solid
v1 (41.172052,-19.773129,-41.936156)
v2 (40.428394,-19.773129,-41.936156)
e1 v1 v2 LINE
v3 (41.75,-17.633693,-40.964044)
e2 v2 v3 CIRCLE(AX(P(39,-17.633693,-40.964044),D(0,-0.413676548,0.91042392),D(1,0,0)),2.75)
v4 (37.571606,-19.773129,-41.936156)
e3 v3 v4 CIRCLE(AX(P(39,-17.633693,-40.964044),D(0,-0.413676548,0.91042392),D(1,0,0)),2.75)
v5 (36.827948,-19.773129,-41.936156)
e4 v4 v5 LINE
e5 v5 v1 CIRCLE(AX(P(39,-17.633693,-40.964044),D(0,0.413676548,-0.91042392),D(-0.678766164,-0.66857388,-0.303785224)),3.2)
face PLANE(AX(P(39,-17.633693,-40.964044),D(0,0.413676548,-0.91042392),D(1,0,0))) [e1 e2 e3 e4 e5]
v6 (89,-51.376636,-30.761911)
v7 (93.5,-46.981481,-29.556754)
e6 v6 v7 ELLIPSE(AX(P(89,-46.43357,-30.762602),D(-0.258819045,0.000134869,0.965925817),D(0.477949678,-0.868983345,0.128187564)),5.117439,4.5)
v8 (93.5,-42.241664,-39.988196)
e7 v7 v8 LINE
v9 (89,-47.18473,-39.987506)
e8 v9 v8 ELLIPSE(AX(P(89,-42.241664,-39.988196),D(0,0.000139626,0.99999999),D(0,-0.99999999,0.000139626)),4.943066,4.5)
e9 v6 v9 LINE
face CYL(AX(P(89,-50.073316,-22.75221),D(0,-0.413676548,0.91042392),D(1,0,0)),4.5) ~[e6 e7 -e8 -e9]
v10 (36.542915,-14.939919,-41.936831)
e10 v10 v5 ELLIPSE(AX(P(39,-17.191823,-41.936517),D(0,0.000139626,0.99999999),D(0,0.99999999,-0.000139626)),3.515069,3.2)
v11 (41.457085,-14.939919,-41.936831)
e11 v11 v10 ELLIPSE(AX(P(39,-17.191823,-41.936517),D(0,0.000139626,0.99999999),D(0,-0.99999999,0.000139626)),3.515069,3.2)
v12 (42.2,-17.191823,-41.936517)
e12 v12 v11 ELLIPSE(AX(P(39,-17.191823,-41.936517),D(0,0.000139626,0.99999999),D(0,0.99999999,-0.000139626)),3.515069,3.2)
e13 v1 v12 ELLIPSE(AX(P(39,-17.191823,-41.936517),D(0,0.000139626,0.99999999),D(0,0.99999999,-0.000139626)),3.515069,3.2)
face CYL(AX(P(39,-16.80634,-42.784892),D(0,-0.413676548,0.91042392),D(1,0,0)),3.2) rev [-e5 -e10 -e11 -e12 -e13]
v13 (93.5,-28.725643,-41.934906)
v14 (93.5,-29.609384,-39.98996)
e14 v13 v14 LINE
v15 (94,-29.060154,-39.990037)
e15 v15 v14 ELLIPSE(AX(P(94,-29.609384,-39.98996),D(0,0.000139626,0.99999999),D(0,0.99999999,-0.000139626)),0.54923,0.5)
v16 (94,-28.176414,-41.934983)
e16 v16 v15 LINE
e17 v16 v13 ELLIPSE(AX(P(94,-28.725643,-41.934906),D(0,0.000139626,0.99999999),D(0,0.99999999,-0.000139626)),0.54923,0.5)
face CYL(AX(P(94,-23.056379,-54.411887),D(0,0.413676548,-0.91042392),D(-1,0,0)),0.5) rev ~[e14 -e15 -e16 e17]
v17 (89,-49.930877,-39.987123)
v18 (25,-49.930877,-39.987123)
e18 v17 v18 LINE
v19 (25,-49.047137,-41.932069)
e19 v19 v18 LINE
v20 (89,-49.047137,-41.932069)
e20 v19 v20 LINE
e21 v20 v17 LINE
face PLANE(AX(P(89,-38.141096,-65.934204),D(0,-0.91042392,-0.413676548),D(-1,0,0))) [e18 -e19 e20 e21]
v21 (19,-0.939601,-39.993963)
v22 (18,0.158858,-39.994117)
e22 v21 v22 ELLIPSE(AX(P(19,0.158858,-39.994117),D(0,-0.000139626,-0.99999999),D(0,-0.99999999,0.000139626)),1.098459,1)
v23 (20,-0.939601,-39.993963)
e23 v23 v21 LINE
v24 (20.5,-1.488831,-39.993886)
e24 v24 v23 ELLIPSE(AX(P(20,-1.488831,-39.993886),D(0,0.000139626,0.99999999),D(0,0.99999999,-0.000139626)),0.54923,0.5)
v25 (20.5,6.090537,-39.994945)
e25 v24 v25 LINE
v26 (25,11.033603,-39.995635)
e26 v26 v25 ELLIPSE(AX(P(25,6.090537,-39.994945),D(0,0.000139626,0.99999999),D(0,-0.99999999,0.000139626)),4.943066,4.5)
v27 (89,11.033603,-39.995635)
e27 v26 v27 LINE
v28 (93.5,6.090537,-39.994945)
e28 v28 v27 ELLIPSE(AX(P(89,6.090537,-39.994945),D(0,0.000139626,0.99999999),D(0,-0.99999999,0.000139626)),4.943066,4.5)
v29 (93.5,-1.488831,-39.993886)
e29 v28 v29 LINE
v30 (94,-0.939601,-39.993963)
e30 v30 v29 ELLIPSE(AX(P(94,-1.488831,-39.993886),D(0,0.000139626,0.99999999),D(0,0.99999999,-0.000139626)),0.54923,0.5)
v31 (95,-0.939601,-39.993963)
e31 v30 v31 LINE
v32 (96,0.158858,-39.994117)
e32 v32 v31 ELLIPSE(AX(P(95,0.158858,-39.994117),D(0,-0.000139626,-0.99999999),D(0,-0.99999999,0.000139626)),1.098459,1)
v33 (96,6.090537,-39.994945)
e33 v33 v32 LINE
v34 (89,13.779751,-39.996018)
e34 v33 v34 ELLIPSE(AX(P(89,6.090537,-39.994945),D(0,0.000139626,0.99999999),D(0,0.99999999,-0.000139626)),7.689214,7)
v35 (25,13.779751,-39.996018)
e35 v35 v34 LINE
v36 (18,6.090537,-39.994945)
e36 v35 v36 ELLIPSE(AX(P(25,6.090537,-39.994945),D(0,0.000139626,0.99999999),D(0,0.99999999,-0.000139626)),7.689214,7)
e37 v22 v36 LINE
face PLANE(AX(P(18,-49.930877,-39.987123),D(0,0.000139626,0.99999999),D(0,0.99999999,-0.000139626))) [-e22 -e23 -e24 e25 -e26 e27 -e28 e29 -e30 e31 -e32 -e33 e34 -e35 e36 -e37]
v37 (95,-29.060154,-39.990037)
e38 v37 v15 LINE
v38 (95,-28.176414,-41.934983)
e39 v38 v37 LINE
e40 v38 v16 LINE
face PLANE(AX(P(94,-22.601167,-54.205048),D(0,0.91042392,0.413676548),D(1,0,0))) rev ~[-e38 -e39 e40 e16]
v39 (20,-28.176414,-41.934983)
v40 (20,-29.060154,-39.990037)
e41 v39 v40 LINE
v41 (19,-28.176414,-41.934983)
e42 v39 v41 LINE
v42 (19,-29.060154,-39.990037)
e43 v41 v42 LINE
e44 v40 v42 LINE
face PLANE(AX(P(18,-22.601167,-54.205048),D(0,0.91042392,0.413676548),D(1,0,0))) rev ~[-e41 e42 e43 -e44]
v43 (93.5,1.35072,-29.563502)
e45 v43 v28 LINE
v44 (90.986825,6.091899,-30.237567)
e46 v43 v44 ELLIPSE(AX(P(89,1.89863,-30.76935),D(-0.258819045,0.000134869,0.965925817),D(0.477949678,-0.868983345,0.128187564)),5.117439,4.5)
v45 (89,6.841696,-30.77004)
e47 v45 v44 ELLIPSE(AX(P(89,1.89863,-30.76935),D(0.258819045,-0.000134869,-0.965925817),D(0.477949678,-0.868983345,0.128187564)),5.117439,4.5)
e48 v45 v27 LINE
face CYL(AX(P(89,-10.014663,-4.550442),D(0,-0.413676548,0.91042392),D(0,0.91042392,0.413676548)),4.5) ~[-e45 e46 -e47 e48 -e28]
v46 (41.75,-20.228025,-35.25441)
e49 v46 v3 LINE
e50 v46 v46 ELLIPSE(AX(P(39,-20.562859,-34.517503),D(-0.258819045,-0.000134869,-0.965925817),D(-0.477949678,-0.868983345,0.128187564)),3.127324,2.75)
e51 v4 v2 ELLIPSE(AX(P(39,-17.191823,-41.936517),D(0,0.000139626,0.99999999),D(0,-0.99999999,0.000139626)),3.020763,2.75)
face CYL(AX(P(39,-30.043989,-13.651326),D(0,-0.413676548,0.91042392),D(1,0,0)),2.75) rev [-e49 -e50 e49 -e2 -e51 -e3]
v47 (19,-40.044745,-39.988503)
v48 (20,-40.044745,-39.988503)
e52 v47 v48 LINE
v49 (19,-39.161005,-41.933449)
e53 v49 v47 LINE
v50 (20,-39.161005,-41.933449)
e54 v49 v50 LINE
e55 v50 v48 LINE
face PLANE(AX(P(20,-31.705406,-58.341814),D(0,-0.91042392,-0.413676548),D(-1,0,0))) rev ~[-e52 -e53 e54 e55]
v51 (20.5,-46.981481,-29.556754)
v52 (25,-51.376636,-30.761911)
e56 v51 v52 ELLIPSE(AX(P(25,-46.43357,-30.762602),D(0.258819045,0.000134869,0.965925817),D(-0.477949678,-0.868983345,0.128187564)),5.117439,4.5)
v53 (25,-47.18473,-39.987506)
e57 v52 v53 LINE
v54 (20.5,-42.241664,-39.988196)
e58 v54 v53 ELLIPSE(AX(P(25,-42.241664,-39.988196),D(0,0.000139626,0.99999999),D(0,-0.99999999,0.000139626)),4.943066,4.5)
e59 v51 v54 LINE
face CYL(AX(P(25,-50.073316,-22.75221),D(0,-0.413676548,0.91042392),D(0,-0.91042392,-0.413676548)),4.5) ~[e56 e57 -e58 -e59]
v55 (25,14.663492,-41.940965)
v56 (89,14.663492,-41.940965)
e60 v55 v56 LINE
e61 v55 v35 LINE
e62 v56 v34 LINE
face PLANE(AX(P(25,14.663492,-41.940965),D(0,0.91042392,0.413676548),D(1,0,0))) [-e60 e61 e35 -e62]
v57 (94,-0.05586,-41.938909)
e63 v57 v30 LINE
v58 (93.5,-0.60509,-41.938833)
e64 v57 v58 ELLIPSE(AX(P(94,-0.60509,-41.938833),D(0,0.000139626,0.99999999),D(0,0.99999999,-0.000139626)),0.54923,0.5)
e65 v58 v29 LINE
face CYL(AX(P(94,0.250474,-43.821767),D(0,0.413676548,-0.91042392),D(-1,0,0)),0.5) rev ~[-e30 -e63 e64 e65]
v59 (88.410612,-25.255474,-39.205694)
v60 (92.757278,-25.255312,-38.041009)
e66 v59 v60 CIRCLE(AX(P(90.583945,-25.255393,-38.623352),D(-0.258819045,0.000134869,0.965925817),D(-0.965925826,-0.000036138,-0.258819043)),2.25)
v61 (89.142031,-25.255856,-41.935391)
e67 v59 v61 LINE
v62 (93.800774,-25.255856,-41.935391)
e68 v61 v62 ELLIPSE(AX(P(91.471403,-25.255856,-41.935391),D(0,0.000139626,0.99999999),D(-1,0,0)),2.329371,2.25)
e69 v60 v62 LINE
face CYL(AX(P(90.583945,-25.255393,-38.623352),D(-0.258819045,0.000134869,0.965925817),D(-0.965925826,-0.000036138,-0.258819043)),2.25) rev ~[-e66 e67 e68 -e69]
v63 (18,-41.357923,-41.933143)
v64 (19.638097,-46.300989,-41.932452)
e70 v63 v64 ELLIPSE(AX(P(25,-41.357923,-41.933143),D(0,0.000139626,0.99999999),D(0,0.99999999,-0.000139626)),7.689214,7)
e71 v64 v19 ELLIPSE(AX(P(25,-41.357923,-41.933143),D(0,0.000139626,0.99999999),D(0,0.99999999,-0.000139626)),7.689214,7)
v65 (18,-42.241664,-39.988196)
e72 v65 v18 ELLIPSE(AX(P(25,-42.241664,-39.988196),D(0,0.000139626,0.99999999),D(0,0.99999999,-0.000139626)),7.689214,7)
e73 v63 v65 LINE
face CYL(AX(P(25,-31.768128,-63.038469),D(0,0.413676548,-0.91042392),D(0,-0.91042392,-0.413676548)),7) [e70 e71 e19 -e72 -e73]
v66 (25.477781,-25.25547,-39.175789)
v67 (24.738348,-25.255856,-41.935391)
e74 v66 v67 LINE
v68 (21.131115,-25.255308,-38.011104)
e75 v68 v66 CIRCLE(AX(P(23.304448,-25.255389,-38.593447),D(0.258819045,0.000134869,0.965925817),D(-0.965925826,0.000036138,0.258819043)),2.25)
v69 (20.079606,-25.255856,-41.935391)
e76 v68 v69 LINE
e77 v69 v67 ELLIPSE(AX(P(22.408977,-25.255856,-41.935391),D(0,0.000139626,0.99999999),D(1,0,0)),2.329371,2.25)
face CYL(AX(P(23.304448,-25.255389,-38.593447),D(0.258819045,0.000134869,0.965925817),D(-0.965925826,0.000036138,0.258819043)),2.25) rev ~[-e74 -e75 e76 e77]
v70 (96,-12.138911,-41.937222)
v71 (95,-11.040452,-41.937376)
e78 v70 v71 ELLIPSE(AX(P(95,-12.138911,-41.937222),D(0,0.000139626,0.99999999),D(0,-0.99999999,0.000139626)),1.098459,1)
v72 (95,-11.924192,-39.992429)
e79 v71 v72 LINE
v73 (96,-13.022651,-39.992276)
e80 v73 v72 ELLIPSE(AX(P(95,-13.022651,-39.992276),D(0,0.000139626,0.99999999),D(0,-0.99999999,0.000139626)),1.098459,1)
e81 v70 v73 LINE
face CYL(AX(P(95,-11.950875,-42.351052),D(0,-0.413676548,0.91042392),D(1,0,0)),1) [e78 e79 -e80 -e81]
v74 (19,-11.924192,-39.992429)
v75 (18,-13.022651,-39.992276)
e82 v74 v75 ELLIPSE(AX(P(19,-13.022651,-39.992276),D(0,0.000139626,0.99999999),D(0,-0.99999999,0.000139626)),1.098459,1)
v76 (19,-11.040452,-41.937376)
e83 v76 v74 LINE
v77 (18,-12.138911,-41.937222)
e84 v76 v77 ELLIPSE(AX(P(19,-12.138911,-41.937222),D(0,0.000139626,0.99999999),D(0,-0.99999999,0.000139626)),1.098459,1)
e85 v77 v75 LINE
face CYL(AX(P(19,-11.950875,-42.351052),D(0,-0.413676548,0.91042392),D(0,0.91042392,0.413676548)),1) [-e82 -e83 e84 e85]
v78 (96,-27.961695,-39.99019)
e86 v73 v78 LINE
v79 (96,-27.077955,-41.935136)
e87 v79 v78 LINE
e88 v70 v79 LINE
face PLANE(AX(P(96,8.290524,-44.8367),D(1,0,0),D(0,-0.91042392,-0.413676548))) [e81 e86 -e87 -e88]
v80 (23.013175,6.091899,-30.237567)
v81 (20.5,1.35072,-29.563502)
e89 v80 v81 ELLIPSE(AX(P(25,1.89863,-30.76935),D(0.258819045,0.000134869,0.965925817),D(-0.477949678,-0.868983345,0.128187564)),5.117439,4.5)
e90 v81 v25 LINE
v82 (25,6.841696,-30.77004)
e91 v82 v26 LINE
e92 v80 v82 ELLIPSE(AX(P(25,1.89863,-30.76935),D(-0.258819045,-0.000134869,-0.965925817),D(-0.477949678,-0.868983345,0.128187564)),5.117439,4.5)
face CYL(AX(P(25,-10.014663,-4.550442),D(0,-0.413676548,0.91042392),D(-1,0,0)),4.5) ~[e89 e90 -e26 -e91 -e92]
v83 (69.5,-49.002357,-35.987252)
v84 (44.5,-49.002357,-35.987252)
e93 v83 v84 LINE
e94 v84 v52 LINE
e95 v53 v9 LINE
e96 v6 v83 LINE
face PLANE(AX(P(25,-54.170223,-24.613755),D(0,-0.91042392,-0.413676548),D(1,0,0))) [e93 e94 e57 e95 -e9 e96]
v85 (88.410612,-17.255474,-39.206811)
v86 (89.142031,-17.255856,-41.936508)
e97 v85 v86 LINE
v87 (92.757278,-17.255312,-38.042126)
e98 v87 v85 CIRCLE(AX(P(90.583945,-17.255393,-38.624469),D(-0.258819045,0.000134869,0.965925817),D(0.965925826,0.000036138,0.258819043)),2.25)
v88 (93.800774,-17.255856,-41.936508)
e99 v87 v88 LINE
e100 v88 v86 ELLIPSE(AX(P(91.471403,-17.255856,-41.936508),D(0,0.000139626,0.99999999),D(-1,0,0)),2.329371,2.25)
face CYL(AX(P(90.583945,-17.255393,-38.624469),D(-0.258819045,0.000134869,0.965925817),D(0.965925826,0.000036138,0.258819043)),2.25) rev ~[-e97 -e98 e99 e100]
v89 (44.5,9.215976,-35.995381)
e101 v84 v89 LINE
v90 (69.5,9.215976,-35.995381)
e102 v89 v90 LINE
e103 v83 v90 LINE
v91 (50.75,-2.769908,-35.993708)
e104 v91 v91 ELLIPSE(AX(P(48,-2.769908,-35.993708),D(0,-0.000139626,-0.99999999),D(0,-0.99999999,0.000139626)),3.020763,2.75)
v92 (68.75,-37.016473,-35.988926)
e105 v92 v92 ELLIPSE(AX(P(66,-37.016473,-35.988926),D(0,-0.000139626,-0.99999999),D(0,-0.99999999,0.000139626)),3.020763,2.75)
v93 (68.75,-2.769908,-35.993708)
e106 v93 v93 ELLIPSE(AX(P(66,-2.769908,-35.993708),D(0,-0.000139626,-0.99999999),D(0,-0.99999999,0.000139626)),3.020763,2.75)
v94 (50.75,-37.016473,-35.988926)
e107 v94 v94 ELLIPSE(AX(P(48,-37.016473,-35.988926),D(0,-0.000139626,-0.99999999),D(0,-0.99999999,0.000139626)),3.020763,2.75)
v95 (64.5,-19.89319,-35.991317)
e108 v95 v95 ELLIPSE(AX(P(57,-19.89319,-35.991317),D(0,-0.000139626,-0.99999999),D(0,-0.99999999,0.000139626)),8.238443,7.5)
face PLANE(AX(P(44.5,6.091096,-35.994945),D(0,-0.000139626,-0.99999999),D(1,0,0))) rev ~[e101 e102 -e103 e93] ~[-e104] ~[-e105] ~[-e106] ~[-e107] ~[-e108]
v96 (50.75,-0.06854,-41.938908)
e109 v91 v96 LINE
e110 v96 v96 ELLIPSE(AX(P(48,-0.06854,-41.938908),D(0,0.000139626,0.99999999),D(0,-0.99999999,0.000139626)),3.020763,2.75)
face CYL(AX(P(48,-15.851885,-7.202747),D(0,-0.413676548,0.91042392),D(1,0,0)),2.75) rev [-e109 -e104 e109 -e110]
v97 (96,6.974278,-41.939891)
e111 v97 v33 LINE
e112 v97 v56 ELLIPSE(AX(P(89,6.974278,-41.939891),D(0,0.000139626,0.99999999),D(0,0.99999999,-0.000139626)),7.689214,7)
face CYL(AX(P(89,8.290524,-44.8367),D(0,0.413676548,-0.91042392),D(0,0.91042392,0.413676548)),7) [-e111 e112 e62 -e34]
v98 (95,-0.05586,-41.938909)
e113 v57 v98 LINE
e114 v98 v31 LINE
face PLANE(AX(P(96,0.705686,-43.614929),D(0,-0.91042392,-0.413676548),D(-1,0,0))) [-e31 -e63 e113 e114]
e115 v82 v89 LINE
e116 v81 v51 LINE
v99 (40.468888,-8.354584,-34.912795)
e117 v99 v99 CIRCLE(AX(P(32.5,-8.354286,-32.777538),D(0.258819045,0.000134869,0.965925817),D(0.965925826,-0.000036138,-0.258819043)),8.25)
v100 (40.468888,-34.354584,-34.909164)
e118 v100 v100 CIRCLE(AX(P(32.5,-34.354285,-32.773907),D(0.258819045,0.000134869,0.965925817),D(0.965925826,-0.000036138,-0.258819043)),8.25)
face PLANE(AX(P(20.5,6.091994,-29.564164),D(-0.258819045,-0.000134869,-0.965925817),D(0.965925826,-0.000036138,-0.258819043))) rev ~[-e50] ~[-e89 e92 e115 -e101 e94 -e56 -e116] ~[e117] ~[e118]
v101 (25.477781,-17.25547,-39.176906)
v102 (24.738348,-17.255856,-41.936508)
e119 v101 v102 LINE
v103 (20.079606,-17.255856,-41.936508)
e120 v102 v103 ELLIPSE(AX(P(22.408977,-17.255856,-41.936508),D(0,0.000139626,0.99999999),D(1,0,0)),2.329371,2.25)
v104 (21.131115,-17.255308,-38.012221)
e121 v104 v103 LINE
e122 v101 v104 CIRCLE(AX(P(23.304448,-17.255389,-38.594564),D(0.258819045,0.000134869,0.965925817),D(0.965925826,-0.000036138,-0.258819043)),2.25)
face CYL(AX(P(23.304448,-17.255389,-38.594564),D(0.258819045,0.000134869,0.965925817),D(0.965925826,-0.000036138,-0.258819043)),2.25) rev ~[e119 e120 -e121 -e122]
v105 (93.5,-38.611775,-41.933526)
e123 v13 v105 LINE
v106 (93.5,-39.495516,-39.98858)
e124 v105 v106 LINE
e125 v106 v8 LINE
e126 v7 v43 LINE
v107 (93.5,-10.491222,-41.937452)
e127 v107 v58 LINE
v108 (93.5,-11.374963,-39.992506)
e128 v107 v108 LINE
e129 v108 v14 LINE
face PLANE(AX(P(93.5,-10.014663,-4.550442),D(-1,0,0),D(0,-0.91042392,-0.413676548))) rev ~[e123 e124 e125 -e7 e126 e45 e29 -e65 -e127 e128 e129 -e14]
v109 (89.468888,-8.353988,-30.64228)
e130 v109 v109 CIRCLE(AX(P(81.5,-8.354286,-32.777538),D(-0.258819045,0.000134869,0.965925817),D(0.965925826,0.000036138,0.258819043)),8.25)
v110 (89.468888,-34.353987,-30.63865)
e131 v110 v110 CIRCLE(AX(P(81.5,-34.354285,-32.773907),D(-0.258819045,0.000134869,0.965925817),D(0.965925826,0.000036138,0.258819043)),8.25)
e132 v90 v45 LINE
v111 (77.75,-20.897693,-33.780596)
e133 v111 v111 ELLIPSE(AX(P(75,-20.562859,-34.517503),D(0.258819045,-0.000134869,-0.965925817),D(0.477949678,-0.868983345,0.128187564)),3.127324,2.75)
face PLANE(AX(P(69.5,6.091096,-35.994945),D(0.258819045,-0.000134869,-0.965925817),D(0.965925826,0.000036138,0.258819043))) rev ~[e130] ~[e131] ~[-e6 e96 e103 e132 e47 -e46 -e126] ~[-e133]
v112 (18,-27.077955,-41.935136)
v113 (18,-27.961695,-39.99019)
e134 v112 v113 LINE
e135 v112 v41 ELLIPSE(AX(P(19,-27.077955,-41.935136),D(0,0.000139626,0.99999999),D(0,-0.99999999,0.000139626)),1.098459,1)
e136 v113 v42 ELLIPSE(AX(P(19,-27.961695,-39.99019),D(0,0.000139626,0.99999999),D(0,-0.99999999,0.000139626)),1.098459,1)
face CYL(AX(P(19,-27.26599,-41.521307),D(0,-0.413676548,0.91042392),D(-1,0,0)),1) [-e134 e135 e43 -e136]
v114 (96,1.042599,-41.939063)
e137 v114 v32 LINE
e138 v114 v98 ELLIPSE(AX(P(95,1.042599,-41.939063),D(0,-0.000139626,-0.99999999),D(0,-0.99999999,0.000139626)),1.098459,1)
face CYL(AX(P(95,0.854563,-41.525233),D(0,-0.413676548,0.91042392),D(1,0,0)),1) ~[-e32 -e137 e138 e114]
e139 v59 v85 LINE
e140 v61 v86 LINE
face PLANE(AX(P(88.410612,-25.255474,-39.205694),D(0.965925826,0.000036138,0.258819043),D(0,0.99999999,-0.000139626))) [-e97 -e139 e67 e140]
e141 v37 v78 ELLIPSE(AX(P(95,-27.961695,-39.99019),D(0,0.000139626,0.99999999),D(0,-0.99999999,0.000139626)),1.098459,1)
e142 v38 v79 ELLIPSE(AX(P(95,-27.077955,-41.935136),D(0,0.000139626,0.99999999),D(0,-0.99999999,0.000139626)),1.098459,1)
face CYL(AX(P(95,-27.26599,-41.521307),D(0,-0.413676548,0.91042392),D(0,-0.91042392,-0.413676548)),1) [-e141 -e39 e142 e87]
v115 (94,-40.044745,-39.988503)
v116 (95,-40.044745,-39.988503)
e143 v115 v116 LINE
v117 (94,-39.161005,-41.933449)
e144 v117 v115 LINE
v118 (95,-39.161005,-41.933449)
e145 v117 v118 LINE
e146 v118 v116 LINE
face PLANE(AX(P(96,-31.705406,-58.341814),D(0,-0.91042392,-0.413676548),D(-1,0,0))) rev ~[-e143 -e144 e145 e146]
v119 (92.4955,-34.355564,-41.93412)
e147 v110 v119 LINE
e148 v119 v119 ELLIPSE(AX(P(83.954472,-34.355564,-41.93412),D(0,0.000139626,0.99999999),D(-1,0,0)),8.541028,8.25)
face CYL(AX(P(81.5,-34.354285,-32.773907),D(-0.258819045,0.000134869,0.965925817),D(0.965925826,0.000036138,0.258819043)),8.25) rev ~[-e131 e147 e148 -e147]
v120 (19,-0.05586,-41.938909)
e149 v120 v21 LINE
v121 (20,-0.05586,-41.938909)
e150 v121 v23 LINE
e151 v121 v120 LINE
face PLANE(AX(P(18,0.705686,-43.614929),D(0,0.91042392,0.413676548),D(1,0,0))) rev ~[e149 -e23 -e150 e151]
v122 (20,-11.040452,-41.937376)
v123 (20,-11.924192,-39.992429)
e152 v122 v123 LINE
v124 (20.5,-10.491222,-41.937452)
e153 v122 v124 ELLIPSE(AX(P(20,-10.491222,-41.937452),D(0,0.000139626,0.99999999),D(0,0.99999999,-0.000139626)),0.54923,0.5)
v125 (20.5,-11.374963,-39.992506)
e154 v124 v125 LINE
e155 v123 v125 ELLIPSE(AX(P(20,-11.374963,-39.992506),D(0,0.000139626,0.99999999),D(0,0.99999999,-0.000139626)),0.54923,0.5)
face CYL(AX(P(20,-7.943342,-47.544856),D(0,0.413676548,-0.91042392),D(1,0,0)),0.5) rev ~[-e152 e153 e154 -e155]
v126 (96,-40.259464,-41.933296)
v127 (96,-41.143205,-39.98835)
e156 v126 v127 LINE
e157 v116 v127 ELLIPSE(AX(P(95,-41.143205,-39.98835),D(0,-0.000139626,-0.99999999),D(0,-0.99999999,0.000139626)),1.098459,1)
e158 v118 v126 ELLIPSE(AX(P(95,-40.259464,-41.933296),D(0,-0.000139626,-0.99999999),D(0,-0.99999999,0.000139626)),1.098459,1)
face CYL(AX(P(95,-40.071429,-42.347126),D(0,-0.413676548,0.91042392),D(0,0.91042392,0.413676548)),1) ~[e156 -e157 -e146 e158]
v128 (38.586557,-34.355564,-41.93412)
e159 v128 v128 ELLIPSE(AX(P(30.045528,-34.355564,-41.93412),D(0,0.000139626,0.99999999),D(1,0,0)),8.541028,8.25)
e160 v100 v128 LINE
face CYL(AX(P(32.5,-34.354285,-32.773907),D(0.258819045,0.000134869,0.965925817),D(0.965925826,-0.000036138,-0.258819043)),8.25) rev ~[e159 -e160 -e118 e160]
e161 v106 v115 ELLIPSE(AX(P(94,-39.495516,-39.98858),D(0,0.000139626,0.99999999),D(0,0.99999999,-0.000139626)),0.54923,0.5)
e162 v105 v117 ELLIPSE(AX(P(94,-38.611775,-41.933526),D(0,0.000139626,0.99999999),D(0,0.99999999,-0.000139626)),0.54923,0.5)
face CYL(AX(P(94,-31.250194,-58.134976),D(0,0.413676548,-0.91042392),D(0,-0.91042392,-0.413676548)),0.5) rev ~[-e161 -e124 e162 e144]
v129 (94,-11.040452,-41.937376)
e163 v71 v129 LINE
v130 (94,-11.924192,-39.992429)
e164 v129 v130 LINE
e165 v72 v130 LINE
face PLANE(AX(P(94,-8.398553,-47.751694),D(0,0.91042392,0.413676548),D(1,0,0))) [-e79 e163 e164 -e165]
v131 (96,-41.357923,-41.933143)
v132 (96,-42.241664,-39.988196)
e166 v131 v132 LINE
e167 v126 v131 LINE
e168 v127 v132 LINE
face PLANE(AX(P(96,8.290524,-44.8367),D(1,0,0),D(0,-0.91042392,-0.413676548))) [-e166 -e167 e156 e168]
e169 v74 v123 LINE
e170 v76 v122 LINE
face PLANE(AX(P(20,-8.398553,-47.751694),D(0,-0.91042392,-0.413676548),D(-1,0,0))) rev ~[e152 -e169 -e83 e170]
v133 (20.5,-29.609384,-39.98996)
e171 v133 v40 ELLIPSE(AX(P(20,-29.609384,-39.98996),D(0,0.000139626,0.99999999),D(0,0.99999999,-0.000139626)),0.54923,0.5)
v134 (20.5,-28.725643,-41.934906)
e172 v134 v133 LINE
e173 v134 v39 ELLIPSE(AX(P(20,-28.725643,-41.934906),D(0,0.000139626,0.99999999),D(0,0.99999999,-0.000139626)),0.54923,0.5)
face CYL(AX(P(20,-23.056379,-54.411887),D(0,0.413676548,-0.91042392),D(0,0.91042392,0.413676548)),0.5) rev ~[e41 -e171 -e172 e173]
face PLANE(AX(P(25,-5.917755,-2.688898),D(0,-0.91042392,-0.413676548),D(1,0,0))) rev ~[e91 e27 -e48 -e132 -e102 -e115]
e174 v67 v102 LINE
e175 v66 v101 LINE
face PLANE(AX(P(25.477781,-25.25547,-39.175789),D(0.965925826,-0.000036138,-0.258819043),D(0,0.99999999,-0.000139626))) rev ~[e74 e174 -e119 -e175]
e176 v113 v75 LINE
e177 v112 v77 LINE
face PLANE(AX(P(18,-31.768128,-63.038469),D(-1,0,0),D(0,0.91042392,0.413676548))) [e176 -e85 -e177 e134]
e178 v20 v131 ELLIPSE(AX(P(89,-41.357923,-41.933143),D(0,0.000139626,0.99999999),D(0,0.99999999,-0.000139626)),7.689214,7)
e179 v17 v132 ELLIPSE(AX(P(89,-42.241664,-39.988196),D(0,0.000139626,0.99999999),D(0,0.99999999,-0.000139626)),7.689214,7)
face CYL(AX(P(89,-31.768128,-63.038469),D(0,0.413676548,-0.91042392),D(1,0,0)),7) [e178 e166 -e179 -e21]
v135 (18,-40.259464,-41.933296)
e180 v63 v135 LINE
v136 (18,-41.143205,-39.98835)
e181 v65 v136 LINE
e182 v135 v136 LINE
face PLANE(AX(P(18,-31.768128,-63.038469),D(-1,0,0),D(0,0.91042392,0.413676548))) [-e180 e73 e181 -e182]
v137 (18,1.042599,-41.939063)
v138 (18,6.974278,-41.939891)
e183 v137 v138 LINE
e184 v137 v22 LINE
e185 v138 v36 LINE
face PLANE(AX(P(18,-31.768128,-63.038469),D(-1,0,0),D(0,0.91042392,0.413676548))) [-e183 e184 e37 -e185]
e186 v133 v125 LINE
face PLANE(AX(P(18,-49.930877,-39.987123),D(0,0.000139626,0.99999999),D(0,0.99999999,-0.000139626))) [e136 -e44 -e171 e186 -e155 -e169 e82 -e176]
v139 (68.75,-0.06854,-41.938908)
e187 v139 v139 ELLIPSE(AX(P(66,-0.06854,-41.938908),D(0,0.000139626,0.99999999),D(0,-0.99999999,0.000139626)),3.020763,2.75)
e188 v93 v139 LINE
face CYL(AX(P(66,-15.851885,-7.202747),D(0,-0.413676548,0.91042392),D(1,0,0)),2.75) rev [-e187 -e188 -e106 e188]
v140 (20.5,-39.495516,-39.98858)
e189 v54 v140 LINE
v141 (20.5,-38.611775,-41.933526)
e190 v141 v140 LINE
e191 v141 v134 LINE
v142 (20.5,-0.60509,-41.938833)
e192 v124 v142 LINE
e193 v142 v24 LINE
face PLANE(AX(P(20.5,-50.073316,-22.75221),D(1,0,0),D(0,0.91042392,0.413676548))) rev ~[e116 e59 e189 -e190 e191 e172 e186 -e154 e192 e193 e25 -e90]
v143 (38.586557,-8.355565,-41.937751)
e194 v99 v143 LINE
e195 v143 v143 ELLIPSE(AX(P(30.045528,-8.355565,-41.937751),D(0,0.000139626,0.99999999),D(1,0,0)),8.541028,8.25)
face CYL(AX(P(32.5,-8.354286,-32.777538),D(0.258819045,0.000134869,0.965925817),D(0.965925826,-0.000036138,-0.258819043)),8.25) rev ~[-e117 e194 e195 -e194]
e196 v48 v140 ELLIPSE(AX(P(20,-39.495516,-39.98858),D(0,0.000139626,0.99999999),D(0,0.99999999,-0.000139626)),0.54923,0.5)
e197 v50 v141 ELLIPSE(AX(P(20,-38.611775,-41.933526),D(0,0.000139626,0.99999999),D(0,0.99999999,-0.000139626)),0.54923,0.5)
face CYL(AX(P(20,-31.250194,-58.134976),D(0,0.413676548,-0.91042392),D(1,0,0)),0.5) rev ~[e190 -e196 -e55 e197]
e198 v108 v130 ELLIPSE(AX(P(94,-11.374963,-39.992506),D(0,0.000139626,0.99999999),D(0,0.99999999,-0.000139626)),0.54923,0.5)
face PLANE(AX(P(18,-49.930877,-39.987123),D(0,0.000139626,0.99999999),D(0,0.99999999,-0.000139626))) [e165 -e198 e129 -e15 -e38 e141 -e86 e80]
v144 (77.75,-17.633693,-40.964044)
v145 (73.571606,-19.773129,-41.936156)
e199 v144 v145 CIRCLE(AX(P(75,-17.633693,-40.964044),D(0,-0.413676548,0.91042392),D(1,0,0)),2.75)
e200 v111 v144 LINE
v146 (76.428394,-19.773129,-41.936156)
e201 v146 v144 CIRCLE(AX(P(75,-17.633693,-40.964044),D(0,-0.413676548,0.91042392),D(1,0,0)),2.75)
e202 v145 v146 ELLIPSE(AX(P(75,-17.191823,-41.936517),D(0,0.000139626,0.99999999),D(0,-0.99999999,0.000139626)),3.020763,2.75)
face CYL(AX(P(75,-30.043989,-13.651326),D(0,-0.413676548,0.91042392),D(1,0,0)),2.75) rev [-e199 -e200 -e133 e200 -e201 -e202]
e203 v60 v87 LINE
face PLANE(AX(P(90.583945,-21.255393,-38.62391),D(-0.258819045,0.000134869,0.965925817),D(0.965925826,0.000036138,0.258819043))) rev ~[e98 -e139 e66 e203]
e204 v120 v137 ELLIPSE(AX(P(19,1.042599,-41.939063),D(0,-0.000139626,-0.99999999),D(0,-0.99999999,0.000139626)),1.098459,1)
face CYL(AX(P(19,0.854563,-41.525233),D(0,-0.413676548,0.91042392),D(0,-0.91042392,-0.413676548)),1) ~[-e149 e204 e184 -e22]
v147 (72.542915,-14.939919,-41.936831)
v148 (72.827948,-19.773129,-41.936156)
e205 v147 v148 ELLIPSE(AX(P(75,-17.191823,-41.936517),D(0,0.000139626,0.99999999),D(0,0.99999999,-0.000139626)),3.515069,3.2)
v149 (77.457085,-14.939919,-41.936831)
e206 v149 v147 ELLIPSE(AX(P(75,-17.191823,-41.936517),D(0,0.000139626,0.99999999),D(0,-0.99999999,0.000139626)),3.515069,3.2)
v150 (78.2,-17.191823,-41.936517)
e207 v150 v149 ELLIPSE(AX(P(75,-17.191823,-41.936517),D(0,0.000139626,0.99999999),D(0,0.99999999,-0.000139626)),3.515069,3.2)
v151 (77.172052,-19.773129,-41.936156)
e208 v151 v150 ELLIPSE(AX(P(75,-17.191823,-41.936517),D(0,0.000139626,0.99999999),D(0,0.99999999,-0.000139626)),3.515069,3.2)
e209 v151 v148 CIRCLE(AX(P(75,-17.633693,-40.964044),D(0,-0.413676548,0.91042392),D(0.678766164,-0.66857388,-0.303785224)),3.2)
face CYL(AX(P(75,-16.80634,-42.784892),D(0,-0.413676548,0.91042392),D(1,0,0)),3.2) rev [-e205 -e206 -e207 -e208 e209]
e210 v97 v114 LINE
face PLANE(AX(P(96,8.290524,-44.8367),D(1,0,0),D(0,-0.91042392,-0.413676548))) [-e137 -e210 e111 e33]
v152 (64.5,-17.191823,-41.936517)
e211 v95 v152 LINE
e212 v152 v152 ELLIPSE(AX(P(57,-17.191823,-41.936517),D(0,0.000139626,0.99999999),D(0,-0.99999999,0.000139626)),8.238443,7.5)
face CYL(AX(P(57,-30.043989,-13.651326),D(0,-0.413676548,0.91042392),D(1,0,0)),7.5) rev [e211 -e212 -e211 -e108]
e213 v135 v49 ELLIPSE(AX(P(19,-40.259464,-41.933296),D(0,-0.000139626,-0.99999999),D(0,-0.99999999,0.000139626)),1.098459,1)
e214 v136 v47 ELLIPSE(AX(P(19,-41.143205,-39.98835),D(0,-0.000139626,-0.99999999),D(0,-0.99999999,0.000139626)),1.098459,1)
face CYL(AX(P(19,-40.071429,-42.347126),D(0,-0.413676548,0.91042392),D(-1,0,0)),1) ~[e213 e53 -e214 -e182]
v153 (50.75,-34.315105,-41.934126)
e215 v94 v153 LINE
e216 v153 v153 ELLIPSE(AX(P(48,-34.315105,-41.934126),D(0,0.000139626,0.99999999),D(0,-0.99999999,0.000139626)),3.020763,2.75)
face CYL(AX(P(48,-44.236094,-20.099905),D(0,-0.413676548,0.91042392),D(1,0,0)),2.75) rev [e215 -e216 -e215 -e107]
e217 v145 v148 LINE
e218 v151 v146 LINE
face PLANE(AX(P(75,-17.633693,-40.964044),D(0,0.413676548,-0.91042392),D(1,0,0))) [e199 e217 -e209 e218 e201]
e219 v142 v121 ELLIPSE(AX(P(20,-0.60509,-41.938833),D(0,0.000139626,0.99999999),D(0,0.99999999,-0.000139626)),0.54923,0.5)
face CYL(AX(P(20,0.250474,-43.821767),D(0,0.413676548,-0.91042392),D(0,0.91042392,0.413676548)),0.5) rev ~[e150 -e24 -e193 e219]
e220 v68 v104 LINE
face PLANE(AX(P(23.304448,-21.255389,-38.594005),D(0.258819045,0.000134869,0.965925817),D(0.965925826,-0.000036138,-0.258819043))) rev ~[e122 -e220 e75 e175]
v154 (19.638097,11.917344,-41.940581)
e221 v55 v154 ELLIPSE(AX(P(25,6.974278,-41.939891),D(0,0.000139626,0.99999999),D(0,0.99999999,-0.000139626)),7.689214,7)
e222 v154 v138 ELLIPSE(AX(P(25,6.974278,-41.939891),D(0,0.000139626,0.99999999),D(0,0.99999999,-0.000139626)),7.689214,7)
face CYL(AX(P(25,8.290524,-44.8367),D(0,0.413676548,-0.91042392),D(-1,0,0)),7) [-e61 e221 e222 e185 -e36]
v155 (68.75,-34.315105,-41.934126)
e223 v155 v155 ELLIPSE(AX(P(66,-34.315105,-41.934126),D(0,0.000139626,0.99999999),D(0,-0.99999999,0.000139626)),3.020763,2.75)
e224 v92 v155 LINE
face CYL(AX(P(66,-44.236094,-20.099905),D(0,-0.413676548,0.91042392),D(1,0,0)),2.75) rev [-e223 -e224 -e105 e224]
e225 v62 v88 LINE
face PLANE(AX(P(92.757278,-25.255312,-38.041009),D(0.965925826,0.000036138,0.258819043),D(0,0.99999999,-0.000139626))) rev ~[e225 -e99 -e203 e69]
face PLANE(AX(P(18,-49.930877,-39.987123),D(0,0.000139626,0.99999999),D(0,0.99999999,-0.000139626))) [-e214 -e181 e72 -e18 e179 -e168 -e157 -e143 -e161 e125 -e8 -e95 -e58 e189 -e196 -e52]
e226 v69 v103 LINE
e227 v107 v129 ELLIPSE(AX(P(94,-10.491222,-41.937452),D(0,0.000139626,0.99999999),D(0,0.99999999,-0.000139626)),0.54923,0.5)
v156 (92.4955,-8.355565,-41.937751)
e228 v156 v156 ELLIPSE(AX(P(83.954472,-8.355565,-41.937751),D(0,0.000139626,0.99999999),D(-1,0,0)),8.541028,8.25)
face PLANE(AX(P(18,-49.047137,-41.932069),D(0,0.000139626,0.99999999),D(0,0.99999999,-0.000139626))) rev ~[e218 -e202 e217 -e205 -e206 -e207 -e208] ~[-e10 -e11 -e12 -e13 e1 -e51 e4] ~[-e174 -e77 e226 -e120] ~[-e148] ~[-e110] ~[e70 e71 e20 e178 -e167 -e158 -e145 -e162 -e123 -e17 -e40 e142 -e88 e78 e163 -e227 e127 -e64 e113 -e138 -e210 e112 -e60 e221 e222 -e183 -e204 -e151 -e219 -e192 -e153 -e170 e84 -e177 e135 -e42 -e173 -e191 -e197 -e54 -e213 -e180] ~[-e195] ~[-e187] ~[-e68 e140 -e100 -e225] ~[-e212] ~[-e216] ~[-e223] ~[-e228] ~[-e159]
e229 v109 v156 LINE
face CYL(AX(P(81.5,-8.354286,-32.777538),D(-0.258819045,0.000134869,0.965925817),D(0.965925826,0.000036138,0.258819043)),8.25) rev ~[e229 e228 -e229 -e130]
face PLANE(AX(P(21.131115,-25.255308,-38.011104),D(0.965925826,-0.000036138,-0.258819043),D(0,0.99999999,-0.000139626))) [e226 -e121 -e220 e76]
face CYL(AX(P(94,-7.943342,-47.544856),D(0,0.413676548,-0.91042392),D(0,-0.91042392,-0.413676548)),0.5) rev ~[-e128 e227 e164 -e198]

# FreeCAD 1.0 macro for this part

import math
import FreeCAD as App
import Part
import Sketcher
from FreeCAD import Vector
Q = App.Units.Quantity


def edges_at(feature, points):
    """Names of the edges that pass closest to the given points."""
    edges = feature.Shape.Edges
    near = lambda p: min(range(len(edges)), key=lambda i: edges[i].distToShape(Part.Vertex(*p))[0])
    return sorted({f"Edge{near(p) + 1}" for p in points})


def add_polygon(sketch, points):
    """Adds a closed chain of lines whose ends are joined by coincident constraints."""
    first, n = sketch.GeometryCount, len(points)
    for a, b in zip(points, points[1:] + points[:1]):
        sketch.addGeometry(Part.LineSegment(App.Vector(*a, 0), App.Vector(*b, 0)), False)
    for i in range(n):
        sketch.addConstraint(Sketcher.Constraint("Coincident", first + i, 2, first + (i + 1) % n, 1))

doc = App.newDocument("Part")
body = doc.addObject("PartDesign::Body", "Body")

# Sketch on XY plane
sketch1 = body.newObject("Sketcher::SketchObject", "Sketch")
sketch1.AttachmentSupport = (doc.getObject("XY_Plane"), [""])
sketch1.MapMode = "FlatFace"
sketch1.AttachmentOffset = App.Placement(Vector(0, 0, 44.25), App.Rotation())
sketch1.addGeometry([
    Part.LineSegment(Vector(25, 4, 0), Vector(89, 4, 0)),  # 0
    Part.ArcOfCircle(Part.Circle(Vector(89, 11, 0), Vector(0, 0, 1), 7), math.radians(-90), math.radians(0)),  # 1
    Part.LineSegment(Vector(96, 11, 0), Vector(96, 55, 0)),  # 2
    Part.ArcOfCircle(Part.Circle(Vector(89, 55, 0), Vector(0, 0, 1), 7), math.radians(0), math.radians(90)),  # 3
    Part.LineSegment(Vector(89, 62, 0), Vector(25, 62, 0)),  # 4
    Part.ArcOfCircle(Part.Circle(Vector(25, 55, 0), Vector(0, 0, 1), 7), math.radians(90), math.radians(180)),  # 5
    Part.LineSegment(Vector(18, 55, 0), Vector(18, 11, 0)),  # 6
    Part.ArcOfCircle(Part.Circle(Vector(25, 11, 0), Vector(0, 0, 1), 7), math.radians(180), math.radians(270)),  # 7
], False)
sketch1.addConstraint([
    Sketcher.Constraint("Tangent", 0, 2, 1, 1),
    Sketcher.Constraint("Tangent", 1, 2, 2, 1),
    Sketcher.Constraint("Tangent", 2, 2, 3, 1),
    Sketcher.Constraint("Tangent", 3, 2, 4, 1),
    Sketcher.Constraint("Tangent", 4, 2, 5, 1),
    Sketcher.Constraint("Tangent", 5, 2, 6, 1),
    Sketcher.Constraint("Tangent", 6, 2, 7, 1),
    Sketcher.Constraint("Tangent", 7, 2, 0, 1),
    Sketcher.Constraint("Horizontal", 0),
    Sketcher.Constraint("Vertical", 2),
    Sketcher.Constraint("Horizontal", 4),
    Sketcher.Constraint("Vertical", 6),
    Sketcher.Constraint("Equal", 1, 3),
    Sketcher.Constraint("Equal", 3, 5),
    Sketcher.Constraint("Equal", 5, 7),
    Sketcher.Constraint("Radius", 1, 7.0),
    Sketcher.Constraint("DistanceX", 0, 1, 0, 2, 64.0),
    Sketcher.Constraint("DistanceY", 2, 1, 2, 2, 44.0),
    Sketcher.Constraint("DistanceX", -1, 1, 1, 3, 89.0),
    Sketcher.Constraint("DistanceY", -1, 1, 1, 3, 11.0),
])
pad1 = body.newObject("PartDesign::Pad", "Pad")
pad1.Profile = sketch1
pad1.Length = 28.5
pad1.Reversed = True

# Sketch on YZ plane
sketch2 = body.newObject("Sketcher::SketchObject", "Sketch001")
sketch2.AttachmentSupport = (doc.getObject("YZ_Plane"), [""])
sketch2.MapMode = "FlatFace"
sketch2.AttachmentOffset = App.Placement(Vector(0, 0, 18), App.Rotation())
add_polygon(sketch2, [(4, 42), (62, 16), (4, 16)])  # lines 0-2
add_polygon(sketch2, [(62, 18), (4, 44), (62, 44)])  # lines 3-5
sketch2.addConstraint([
    Sketcher.Constraint("Horizontal", 1),
    Sketcher.Constraint("Vertical", 2),
    Sketcher.Constraint("Horizontal", 4),
    Sketcher.Constraint("Vertical", 5),
    Sketcher.Constraint("Parallel", 0, 3),
    Sketcher.Constraint("Vertical", 2, 2, 3, 2),
    Sketcher.Constraint("Vertical", 0, 2, 4, 2),
    Sketcher.Constraint("DistanceX", 1, 2, 1, 1, 58.0),
    Sketcher.Constraint("DistanceX", -1, 1, 0, 2, 62.0),
    Sketcher.Constraint("DistanceY", 1, 2, 3, 2, 28.5),
    Sketcher.Constraint("DistanceY", -1, 1, 0, 2, 15.75),
    Sketcher.Constraint("DistanceY", 2, 1, 2, 2, 26.363692),
])
pocket1 = body.newObject("PartDesign::Pocket", "Pocket")
pocket1.Profile = sketch2
pocket1.Length = 80
pocket1.Reversed = True

# Sketch on XY plane
sketch3 = body.newObject("Sketcher::SketchObject", "Sketch002")
sketch3.AttachmentSupport = (doc.getObject("XY_Plane"), [""])
sketch3.MapMode = "FlatFace"
sketch3.addGeometry([
    Part.ArcOfCircle(Part.Circle(Vector(25, 11, 0), Vector(0, 0, 1), 4.5), math.radians(180), math.radians(270)),  # 0
    Part.LineSegment(Vector(25, 6.5, 0), Vector(89, 6.5, 0)),  # 1
    Part.ArcOfCircle(Part.Circle(Vector(89, 11, 0), Vector(0, 0, 1), 4.5), math.radians(-90), math.radians(0)),  # 2
    Part.LineSegment(Vector(93.5, 11, 0), Vector(93.5, 55, 0)),  # 3
    Part.ArcOfCircle(Part.Circle(Vector(89, 55, 0), Vector(0, 0, 1), 4.5), math.radians(0), math.radians(90)),  # 4
    Part.LineSegment(Vector(89, 59.5, 0), Vector(25, 59.5, 0)),  # 5
    Part.ArcOfCircle(Part.Circle(Vector(25, 55, 0), Vector(0, 0, 1), 4.5), math.radians(90), math.radians(180)),  # 6
    Part.LineSegment(Vector(20.5, 55, 0), Vector(20.5, 11, 0)),  # 7
], False)
sketch3.addConstraint([
    Sketcher.Constraint("Tangent", 0, 2, 1, 1),
    Sketcher.Constraint("Tangent", 1, 2, 2, 1),
    Sketcher.Constraint("Tangent", 2, 2, 3, 1),
    Sketcher.Constraint("Tangent", 3, 2, 4, 1),
    Sketcher.Constraint("Tangent", 4, 2, 5, 1),
    Sketcher.Constraint("Tangent", 5, 2, 6, 1),
    Sketcher.Constraint("Tangent", 6, 2, 7, 1),
    Sketcher.Constraint("Tangent", 7, 2, 0, 1),
    Sketcher.Constraint("Horizontal", 1),
    Sketcher.Constraint("Vertical", 3),
    Sketcher.Constraint("Horizontal", 5),
    Sketcher.Constraint("Vertical", 7),
    Sketcher.Constraint("Equal", 0, 2),
    Sketcher.Constraint("Equal", 2, 4),
    Sketcher.Constraint("Equal", 4, 6),
    Sketcher.Constraint("Radius", 0, 4.5),
    Sketcher.Constraint("DistanceX", 1, 1, 1, 2, 64.0),
    Sketcher.Constraint("DistanceY", 3, 1, 3, 2, 44.0),
    Sketcher.Constraint("DistanceX", -1, 1, 0, 3, 25.0),
    Sketcher.Constraint("DistanceY", -1, 1, 0, 3, 11.0),
])
pad2 = body.newObject("PartDesign::Pad", "Pad001")
pad2.Profile = sketch3
pad2.Length = 44

# Sketch on YZ plane
sketch4 = body.newObject("Sketcher::SketchObject", "Sketch003")
sketch4.AttachmentSupport = (doc.getObject("YZ_Plane"), [""])
sketch4.MapMode = "FlatFace"
sketch4.AttachmentOffset = App.Placement(Vector(0, 0, 93.5), App.Rotation())
add_polygon(sketch4, [(6.5, 43.1), (59.5, 19), (59.5, 44), (6.5, 44)])  # lines 0-3
sketch4.addConstraint([
    Sketcher.Constraint("Vertical", 1),
    Sketcher.Constraint("Horizontal", 2),
    Sketcher.Constraint("Vertical", 3),
    Sketcher.Constraint("DistanceX", 2, 2, 2, 1, 53.0),
    Sketcher.Constraint("DistanceY", -1, 1, 1, 2, 44.0),
    Sketcher.Constraint("DistanceX", -1, 1, 0, 2, 59.5),
    Sketcher.Constraint("DistanceY", 1, 1, 1, 2, 24.977326),
    Sketcher.Constraint("DistanceY", 3, 2, 3, 1, 0.886366),
])
pocket2 = body.newObject("PartDesign::Pocket", "Pocket001")
pocket2.Profile = sketch4
pocket2.Length = 80

# Sketch on an angled plane
sketch5 = body.newObject("Sketcher::SketchObject", "Sketch004")
sketch5.Placement = App.Placement(Vector(96, 11, 38.931867), App.Rotation(Vector(1, 0, 0), Vector(0, 0.413803663, 0.910366151), Vector(0, -0.910366151, 0.413803663), "ZXY"))
add_polygon(sketch5, [(-52, -4), (-76, -10), (-76, -38), (-2, -38), (-2, -10), (-26, -4)])  # lines 0-5
sketch5.addConstraint([
    Sketcher.Constraint("Vertical", 1),
    Sketcher.Constraint("Horizontal", 2),
    Sketcher.Constraint("Vertical", 3),
    Sketcher.Constraint("Horizontal", 5),
    Sketcher.Constraint("Horizontal", 0, 2, 3, 2),
    Sketcher.Constraint("Equal", 0, 4),
    Sketcher.Constraint("DistanceX", 2, 1, 2, 2, 73.0),
    Sketcher.Constraint("DistanceX", 5, 2, 5, 1, 25.0),
    Sketcher.Constraint("Angle", 0, Q("-165 deg")),
    Sketcher.Constraint("DistanceY", 1, 2, -1, 1, 38.0),
    Sketcher.Constraint("DistanceY", 4, 2, -1, 1, 4.0),
    Sketcher.Constraint("DistanceX", 0, 2, -1, 1, 75.5),
])
pocket3 = body.newObject("PartDesign::Pocket", "Pocket002")
pocket3.Profile = sketch5
pocket3.Type = "ThroughAll"
pocket3.Midplane = True

# Sketch on an angled plane
sketch6 = body.newObject("Sketcher::SketchObject", "Sketch005")
sketch6.Placement = App.Placement(Vector(-6.017589, 9.293181, 20.444955), App.Rotation(Vector(0.965925826, 0.107100269, 0.235620098), Vector(0, -0.910366151, 0.413803663), Vector(0.258819045, -0.399703645, -0.879346177), "ZXY"))
sketch6.addGeometry([
    Part.Circle(Vector(40, -8, 0), Vector(0, 0, 1), 8),
    Part.Circle(Vector(40, -34, 0), Vector(0, 0, 1), 8),
], False)
sketch6.addConstraint([
    Sketcher.Constraint("Equal", 0, 1),
    Sketcher.Constraint("Vertical", 0, 3, 1, 3),
    Sketcher.Constraint("Diameter", 0, 16.5),
    Sketcher.Constraint("DistanceY", 1, 3, 0, 3, 26.0),
    Sketcher.Constraint("DistanceY", 0, 3, -1, 1, 8.349709),
    Sketcher.Constraint("DistanceX", -1, 1, 0, 3, 39.876342),
])
pocket4 = body.newObject("PartDesign::Pocket", "Pocket003")
pocket4.Profile = sketch6
pocket4.Length = 15

# Sketch on an angled plane
sketch7 = body.newObject("Sketcher::SketchObject", "Sketch006")
sketch7.Placement = App.Placement(Vector(13.654141, 21.086585, 46.39039), App.Rotation(Vector(0.965925826, -0.107100269, -0.235620098), Vector(0, -0.910366151, 0.413803663), Vector(-0.258819045, -0.399703645, -0.879346177), "ZXY"))
sketch7.addGeometry([
    Part.Circle(Vector(70, -8, 0), Vector(0, 0, 1), 8),
    Part.Circle(Vector(70, -34, 0), Vector(0, 0, 1), 8),
], False)
sketch7.addConstraint([
    Sketcher.Constraint("Equal", 0, 1),
    Sketcher.Constraint("Vertical", 0, 3, 1, 3),
    Sketcher.Constraint("Diameter", 0, 16.5),
    Sketcher.Constraint("DistanceY", 1, 3, 0, 3, 26.0),
    Sketcher.Constraint("DistanceY", 0, 3, -1, 1, 8.349709),
    Sketcher.Constraint("DistanceX", -1, 1, 0, 3, 70.239202),
])
pocket5 = body.newObject("PartDesign::Pocket", "Pocket004")
pocket5.Profile = sketch7
pocket5.Length = 19

# Sketch on an angled plane
sketch8 = body.newObject("Sketcher::SketchObject", "Sketch007")
sketch8.Placement = App.Placement(Vector(-8.088141, 12.49081, 27.479724), App.Rotation(Vector(0.965925826, 0.107100269, 0.235620098), Vector(0, -0.910366151, 0.413803663), Vector(0.258819045, -0.399703645, -0.879346177), "ZXY"))
sketch8.addGeometry([
    Part.ArcOfCircle(Part.Circle(Vector(32.5, -25.3, 0), Vector(0, 0, 1), 2.2), math.radians(180), math.radians(360)),
    Part.LineSegment(Vector(34.7, -25.3, 0), Vector(34.7, -17.3, 0)),
    Part.ArcOfCircle(Part.Circle(Vector(32.5, -17.3, 0), Vector(0, 0, 1), 2.2), math.radians(0), math.radians(180)),
    Part.LineSegment(Vector(30.2, -17.3, 0), Vector(30.2, -25.3, 0)),
], False)
sketch8.addConstraint([
    Sketcher.Constraint("Tangent", 0, 2, 1, 1),
    Sketcher.Constraint("Tangent", 1, 2, 2, 1),
    Sketcher.Constraint("Tangent", 2, 2, 3, 1),
    Sketcher.Constraint("Tangent", 3, 2, 0, 1),
    Sketcher.Constraint("Vertical", 1),
    Sketcher.Constraint("Vertical", 3),
    Sketcher.Constraint("DistanceY", 1, 1, 1, 2, 8.0),
    Sketcher.Constraint("Radius", 0, 2.25),
    Sketcher.Constraint("DistanceX", -1, 1, 0, 3, 32.5),
    Sketcher.Constraint("DistanceY", 0, 3, -1, 1, 25.25),
])
pocket6 = body.newObject("PartDesign::Pocket", "Pocket005")
pocket6.Profile = sketch8
pocket6.Length = 14

# Sketch on an angled plane
sketch9 = body.newObject("Sketcher::SketchObject", "Sketch008")
sketch9.Placement = App.Placement(Vector(15.724693, 24.284214, 53.425159), App.Rotation(Vector(0.965925826, -0.107100269, -0.235620098), Vector(0, -0.910366151, 0.413803663), Vector(-0.258819045, -0.399703645, -0.879346177), "ZXY"))
sketch9.addGeometry([
    Part.ArcOfCircle(Part.Circle(Vector(77.5, -25.3, 0), Vector(0, 0, 1), 2.2), math.radians(180), math.radians(360)),
    Part.LineSegment(Vector(79.7, -25.3, 0), Vector(79.7, -17.3, 0)),
    Part.ArcOfCircle(Part.Circle(Vector(77.5, -17.3, 0), Vector(0, 0, 1), 2.2), math.radians(0), math.radians(180)),
    Part.LineSegment(Vector(75.2, -17.3, 0), Vector(75.2, -25.3, 0)),
], False)
sketch9.addConstraint([
    Sketcher.Constraint("Tangent", 0, 2, 1, 1),
    Sketcher.Constraint("Tangent", 1, 2, 2, 1),
    Sketcher.Constraint("Tangent", 2, 2, 3, 1),
    Sketcher.Constraint("Tangent", 3, 2, 0, 1),
    Sketcher.Constraint("Vertical", 1),
    Sketcher.Constraint("Vertical", 3),
    Sketcher.Constraint("DistanceY", 1, 1, 1, 2, 8.0),
    Sketcher.Constraint("Radius", 0, 2.25),
    Sketcher.Constraint("DistanceX", -1, 1, 0, 3, 77.5),
    Sketcher.Constraint("DistanceY", 0, 3, -1, 1, 25.25),
])
pocket7 = body.newObject("PartDesign::Pocket", "Pocket006")
pocket7.Profile = sketch9
pocket7.Length = 12

# Sketch on XY plane
sketch10 = body.newObject("Sketcher::SketchObject", "Sketch009")
sketch10.AttachmentSupport = (doc.getObject("XY_Plane"), [""])
sketch10.MapMode = "FlatFace"
sketch10.addGeometry([
    Part.Circle(Vector(57, 33, 0), Vector(0, 0, 1), 7.5),  # 0
    Part.Circle(Vector(48, 48.6, 0), Vector(0, 0, 1), 2.8),  # 1
    Part.Circle(Vector(66, 48.6, 0), Vector(0, 0, 1), 2.8),  # 2
    Part.Circle(Vector(75, 33, 0), Vector(0, 0, 1), 2.8),  # 3
    Part.Circle(Vector(39, 33, 0), Vector(0, 0, 1), 2.8),  # 4
    Part.Circle(Vector(48, 17.4, 0), Vector(0, 0, 1), 2.8),  # 5
    Part.Circle(Vector(66, 17.4, 0), Vector(0, 0, 1), 2.8),  # 6
], False)
sketch10.addConstraint([
    Sketcher.Constraint("Equal", 1, 2),
    Sketcher.Constraint("Equal", 2, 3),
    Sketcher.Constraint("Equal", 3, 4),
    Sketcher.Constraint("Equal", 4, 5),
    Sketcher.Constraint("Equal", 5, 6),
    Sketcher.Constraint("Horizontal", 1, 3, 2, 3),
    Sketcher.Constraint("Horizontal", 0, 3, 3, 3),
    Sketcher.Constraint("Horizontal", 3, 3, 4, 3),
    Sketcher.Constraint("Horizontal", 5, 3, 6, 3),
    Sketcher.Constraint("Vertical", 1, 3, 5, 3),
    Sketcher.Constraint("Vertical", 2, 3, 6, 3),
    Sketcher.Constraint("Diameter", 0, 15.0),
    Sketcher.Constraint("Diameter", 1, 5.5),
    Sketcher.Constraint("DistanceX", -1, 1, 0, 3, 57.0),
    Sketcher.Constraint("DistanceY", -1, 1, 0, 3, 33.0),
    Sketcher.Constraint("DistanceX", -1, 1, 1, 3, 48.0),
    Sketcher.Constraint("DistanceX", -1, 1, 2, 3, 66.0),
    Sketcher.Constraint("DistanceX", -1, 1, 3, 3, 75.0),
    Sketcher.Constraint("DistanceX", -1, 1, 4, 3, 39.0),
    Sketcher.Constraint("DistanceY", -1, 1, 1, 3, 48.588457),
    Sketcher.Constraint("DistanceY", -1, 1, 5, 3, 17.411543),
])
pocket8 = body.newObject("PartDesign::Pocket", "Pocket007")
pocket8.Profile = sketch10
pocket8.Length = 50
pocket8.Reversed = True

# Sketch on XY plane
sketch11 = body.newObject("Sketcher::SketchObject", "Sketch010")
sketch11.AttachmentSupport = (doc.getObject("XY_Plane"), [""])
sketch11.MapMode = "FlatFace"
sketch11.AttachmentOffset = App.Placement(Vector(0, 0, 32), App.Rotation())
sketch11.addGeometry([
    Part.Circle(Vector(39, 33, 0), Vector(0, 0, 1), 3.2),
    Part.Circle(Vector(75, 33, 0), Vector(0, 0, 1), 3.2),
], False)
sketch11.addConstraint([
    Sketcher.Constraint("Equal", 0, 1),
    Sketcher.Constraint("Horizontal", 0, 3, 1, 3),
    Sketcher.Constraint("Diameter", 0, 6.4),
    Sketcher.Constraint("DistanceX", -1, 1, 0, 3, 39.0),
    Sketcher.Constraint("DistanceY", -1, 1, 0, 3, 33.0),
    Sketcher.Constraint("DistanceX", -1, 1, 1, 3, 75.0),
])
pocket9 = body.newObject("PartDesign::Pocket", "Pocket008")
pocket9.Profile = sketch11
pocket9.Type = "TwoLengths"
pocket9.Length = 2
pocket9.Length2 = 100

# Sketch on XY plane
sketch12 = body.newObject("Sketcher::SketchObject", "Sketch011")
sketch12.AttachmentSupport = (doc.getObject("XY_Plane"), [""])
sketch12.MapMode = "FlatFace"
sketch12.AttachmentOffset = App.Placement(Vector(0, 0, 40), App.Rotation())
sketch12.addGeometry([
    Part.LineSegment(Vector(18, 17.4, 0), Vector(20, 17.4, 0)),  # 0
    Part.ArcOfCircle(Part.Circle(Vector(20, 17.9, 0), Vector(0, 0, 1), 0.5), math.radians(-90), math.radians(0)),  # 1
    Part.LineSegment(Vector(20.5, 17.9, 0), Vector(20.5, 26.9, 0)),  # 2
    Part.ArcOfCircle(Part.Circle(Vector(20, 26.9, 0), Vector(0, 0, 1), 0.5), math.radians(0), math.radians(90)),  # 3
    Part.LineSegment(Vector(20, 27.4, 0), Vector(18, 27.4, 0)),  # 4
    Part.LineSegment(Vector(18, 27.4, 0), Vector(18, 17.4, 0)),  # 5
    Part.LineSegment(Vector(18, 43, 0), Vector(20, 43, 0)),  # 6
    Part.ArcOfCircle(Part.Circle(Vector(20, 43.5, 0), Vector(0, 0, 1), 0.5), math.radians(-90), math.radians(0)),  # 7
    Part.LineSegment(Vector(20.5, 43.5, 0), Vector(20.5, 52.5, 0)),  # 8
    Part.ArcOfCircle(Part.Circle(Vector(20, 52.5, 0), Vector(0, 0, 1), 0.5), math.radians(0), math.radians(90)),  # 9
    Part.LineSegment(Vector(20, 53, 0), Vector(18, 53, 0)),  # 10
    Part.LineSegment(Vector(18, 53, 0), Vector(18, 43, 0)),  # 11
    Part.LineSegment(Vector(96, 53, 0), Vector(94, 53, 0)),  # 12
    Part.ArcOfCircle(Part.Circle(Vector(94, 52.5, 0), Vector(0, 0, 1), 0.5), math.radians(90), math.radians(180)),  # 13
    Part.LineSegment(Vector(93.5, 52.5, 0), Vector(93.5, 43.5, 0)),  # 14
    Part.ArcOfCircle(Part.Circle(Vector(94, 43.5, 0), Vector(0, 0, 1), 0.5), math.radians(180), math.radians(270)),  # 15
    Part.LineSegment(Vector(94, 43, 0), Vector(96, 43, 0)),  # 16
    Part.LineSegment(Vector(96, 43, 0), Vector(96, 53, 0)),  # 17
    Part.LineSegment(Vector(94, 17.4, 0), Vector(96, 17.4, 0)),  # 18
    Part.LineSegment(Vector(96, 17.4, 0), Vector(96, 27.4, 0)),  # 19
    Part.LineSegment(Vector(96, 27.4, 0), Vector(94, 27.4, 0)),  # 20
    Part.ArcOfCircle(Part.Circle(Vector(94, 26.9, 0), Vector(0, 0, 1), 0.5), math.radians(90), math.radians(180)),  # 21
    Part.LineSegment(Vector(93.5, 26.9, 0), Vector(93.5, 17.9, 0)),  # 22
    Part.ArcOfCircle(Part.Circle(Vector(94, 17.9, 0), Vector(0, 0, 1), 0.5), math.radians(180), math.radians(270)),  # 23
], False)
sketch12.addConstraint([
    Sketcher.Constraint("Tangent", 0, 2, 1, 1),
    Sketcher.Constraint("Tangent", 1, 2, 2, 1),
    Sketcher.Constraint("Tangent", 2, 2, 3, 1),
    Sketcher.Constraint("Tangent", 3, 2, 4, 1),
    Sketcher.Constraint("Coincident", 4, 2, 5, 1),
    Sketcher.Constraint("Coincident", 5, 2, 0, 1),
    Sketcher.Constraint("Tangent", 6, 2, 7, 1),
    Sketcher.Constraint("Tangent", 7, 2, 8, 1),
    Sketcher.Constraint("Tangent", 8, 2, 9, 1),
    Sketcher.Constraint("Tangent", 9, 2, 10, 1),
    Sketcher.Constraint("Coincident", 10, 2, 11, 1),
    Sketcher.Constraint("Coincident", 11, 2, 6, 1),
    Sketcher.Constraint("Tangent", 12, 2, 13, 1),
    Sketcher.Constraint("Tangent", 13, 2, 14, 1),
    Sketcher.Constraint("Tangent", 14, 2, 15, 1),
    Sketcher.Constraint("Tangent", 15, 2, 16, 1),
    Sketcher.Constraint("Coincident", 16, 2, 17, 1),
    Sketcher.Constraint("Coincident", 17, 2, 12, 1),
    Sketcher.Constraint("Coincident", 18, 2, 19, 1),
    Sketcher.Constraint("Coincident", 19, 2, 20, 1),
    Sketcher.Constraint("Tangent", 20, 2, 21, 1),
    Sketcher.Constraint("Tangent", 21, 2, 22, 1),
    Sketcher.Constraint("Tangent", 22, 2, 23, 1),
    Sketcher.Constraint("Tangent", 23, 2, 18, 1),
    Sketcher.Constraint("Horizontal", 0),
    Sketcher.Constraint("Vertical", 2),
    Sketcher.Constraint("Horizontal", 4),
    Sketcher.Constraint("Vertical", 5),
    Sketcher.Constraint("Horizontal", 6),
    Sketcher.Constraint("Vertical", 8),
    Sketcher.Constraint("Horizontal", 10),
    Sketcher.Constraint("Vertical", 11),
    Sketcher.Constraint("Horizontal", 12),
    Sketcher.Constraint("Vertical", 14),
    Sketcher.Constraint("Horizontal", 16),
    Sketcher.Constraint("Vertical", 17),
    Sketcher.Constraint("Horizontal", 18),
    Sketcher.Constraint("Vertical", 19),
    Sketcher.Constraint("Horizontal", 20),
    Sketcher.Constraint("Vertical", 22),
    Sketcher.Constraint("Equal", 1, 3),
    Sketcher.Constraint("Equal", 3, 7),
    Sketcher.Constraint("Equal", 7, 9),
    Sketcher.Constraint("Equal", 9, 13),
    Sketcher.Constraint("Equal", 13, 15),
    Sketcher.Constraint("Equal", 15, 21),
    Sketcher.Constraint("Equal", 21, 23),
    Sketcher.Constraint("Horizontal", 9, 3, 13, 3),
    Sketcher.Constraint("Horizontal", 7, 3, 15, 3),
    Sketcher.Constraint("Horizontal", 3, 3, 21, 3),
    Sketcher.Constraint("Horizontal", 1, 3, 23, 3),
    Sketcher.Constraint("Vertical", 3, 3, 7, 3),
    Sketcher.Constraint("Vertical", 15, 3, 21, 3),
    Sketcher.Constraint("Vertical", 5, 2, 10, 2),
    Sketcher.Constraint("Vertical", 17, 2, 18, 2),
    Sketcher.Constraint("Equal", 10, 12),
    Sketcher.Constraint("Equal", 2, 8),
    Sketcher.Constraint("Radius", 1, 0.5),
    Sketcher.Constraint("DistanceX", 0, 1, 0, 2, 2.0),
    Sketcher.Constraint("DistanceY", 2, 1, 2, 2, 9.0),
    Sketcher.Constraint("DistanceX", -1, 1, 1, 3, 20.0),
    Sketcher.Constraint("DistanceX", -1, 1, 13, 3, 94.0),
    Sketcher.Constraint("DistanceY", -1, 1, 6, 2, 43.0),
    Sketcher.Constraint("DistanceY", -1, 1, 1, 3, 17.9),
])
pocket10 = body.newObject("PartDesign::Pocket", "Pocket009")
pocket10.Profile = sketch12
pocket10.Length = 40
doc.recompute()

fillet = body.newObject("PartDesign::Fillet", "Fillet")
fillet.Base = (pocket10, edges_at(pocket10, [
    (18, 53, 20.909),
    (18, 43, 25.455),
    (18, 27.4, 32.545),
    (18, 17.4, 37.091),
    (96, 53, 20.909),
    (96, 43, 25.455),
    (96, 27.4, 32.545),
    (96, 17.4, 37.091),
]))
fillet.Radius = 1
body2 = doc.addObject("PartDesign::Body", "Body001")
doc.recompute()

body.Placement = App.Placement(Vector(0, 0, 0), App.Rotation(Vector(1, 0, 0), 204.436))
boolean = body2.newObject("PartDesign::Boolean", "Boolean")
boolean.Type = "Fuse"
boolean.addObjects([body])

doc.recompute()
